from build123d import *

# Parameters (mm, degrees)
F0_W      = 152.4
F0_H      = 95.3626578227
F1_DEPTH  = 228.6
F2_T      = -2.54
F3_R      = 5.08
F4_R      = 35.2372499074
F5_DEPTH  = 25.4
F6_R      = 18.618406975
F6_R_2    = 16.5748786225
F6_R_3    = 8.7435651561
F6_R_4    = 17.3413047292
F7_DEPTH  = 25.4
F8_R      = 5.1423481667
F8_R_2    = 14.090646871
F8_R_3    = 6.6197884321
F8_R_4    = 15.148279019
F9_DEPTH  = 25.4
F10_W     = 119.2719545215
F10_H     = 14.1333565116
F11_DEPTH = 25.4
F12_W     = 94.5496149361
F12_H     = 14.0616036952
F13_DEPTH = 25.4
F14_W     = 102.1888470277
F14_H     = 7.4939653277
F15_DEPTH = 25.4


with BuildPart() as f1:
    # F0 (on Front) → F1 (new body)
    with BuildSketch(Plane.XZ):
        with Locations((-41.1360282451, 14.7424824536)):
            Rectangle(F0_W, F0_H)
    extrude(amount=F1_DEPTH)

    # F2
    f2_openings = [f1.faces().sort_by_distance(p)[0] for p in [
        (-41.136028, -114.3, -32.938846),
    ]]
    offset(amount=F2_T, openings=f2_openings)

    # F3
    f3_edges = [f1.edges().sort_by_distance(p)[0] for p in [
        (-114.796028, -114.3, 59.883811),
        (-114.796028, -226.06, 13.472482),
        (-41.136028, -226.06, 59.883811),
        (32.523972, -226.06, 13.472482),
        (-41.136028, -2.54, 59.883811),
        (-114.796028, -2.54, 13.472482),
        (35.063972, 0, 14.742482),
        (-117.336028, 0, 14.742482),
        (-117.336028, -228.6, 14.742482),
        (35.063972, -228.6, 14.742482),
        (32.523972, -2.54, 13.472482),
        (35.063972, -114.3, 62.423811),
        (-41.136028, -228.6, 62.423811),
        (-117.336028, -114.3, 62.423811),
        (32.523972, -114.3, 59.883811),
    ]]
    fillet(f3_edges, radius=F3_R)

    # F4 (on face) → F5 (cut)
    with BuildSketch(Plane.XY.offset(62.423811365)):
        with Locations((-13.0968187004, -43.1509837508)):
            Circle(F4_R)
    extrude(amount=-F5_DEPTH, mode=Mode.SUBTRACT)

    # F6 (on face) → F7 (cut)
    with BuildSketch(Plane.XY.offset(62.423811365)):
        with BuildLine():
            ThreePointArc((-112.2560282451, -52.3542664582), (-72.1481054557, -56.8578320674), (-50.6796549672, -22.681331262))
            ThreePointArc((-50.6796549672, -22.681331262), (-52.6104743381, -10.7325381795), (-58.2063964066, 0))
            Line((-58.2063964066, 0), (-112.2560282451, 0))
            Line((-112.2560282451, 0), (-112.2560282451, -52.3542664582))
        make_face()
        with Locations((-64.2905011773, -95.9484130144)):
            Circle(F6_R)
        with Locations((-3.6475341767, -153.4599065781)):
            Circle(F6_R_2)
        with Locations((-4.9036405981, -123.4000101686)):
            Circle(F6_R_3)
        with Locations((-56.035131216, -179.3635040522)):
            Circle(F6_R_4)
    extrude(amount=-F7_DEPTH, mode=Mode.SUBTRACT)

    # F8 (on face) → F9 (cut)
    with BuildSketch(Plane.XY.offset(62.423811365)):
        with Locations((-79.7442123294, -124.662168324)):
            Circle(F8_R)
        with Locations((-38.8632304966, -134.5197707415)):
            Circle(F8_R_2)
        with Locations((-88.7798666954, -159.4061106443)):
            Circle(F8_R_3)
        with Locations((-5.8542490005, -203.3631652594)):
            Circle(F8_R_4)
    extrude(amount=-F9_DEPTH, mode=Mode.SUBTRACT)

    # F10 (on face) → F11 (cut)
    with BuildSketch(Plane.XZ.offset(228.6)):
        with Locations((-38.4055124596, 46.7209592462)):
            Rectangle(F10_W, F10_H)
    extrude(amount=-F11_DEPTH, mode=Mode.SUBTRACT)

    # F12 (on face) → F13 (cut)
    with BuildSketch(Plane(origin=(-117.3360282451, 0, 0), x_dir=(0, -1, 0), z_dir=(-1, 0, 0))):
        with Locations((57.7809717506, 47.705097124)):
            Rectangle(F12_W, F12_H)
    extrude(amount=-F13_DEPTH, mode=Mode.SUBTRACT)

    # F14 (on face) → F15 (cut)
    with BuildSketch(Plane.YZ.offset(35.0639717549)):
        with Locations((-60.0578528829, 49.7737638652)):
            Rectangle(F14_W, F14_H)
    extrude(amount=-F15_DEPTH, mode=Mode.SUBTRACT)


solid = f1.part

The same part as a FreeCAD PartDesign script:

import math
import FreeCAD as App
import Part
import Sketcher

V = App.Vector
Q = App.Units.Quantity


def edges_at(feature, points):
    """Names of the edges that pass closest to the given points."""
    edges = feature.Shape.Edges
    near = lambda p: min(range(len(edges)), key=lambda i: edges[i].distToShape(Part.Vertex(*p))[0])
    return sorted({f"Edge{near(p) + 1}" for p in points})


def faces_at(feature, points):
    """Names of the faces that lie closest to the given points."""
    faces = feature.Shape.Faces
    near = lambda p: min(range(len(faces)), key=lambda i: faces[i].distToShape(Part.Vertex(*p))[0])
    return sorted({f"Face{near(p) + 1}" for p in points})


def add_polygon(sketch, points):
    """Adds a closed chain of lines whose ends are joined by coincident constraints."""
    first, n = sketch.GeometryCount, len(points)
    for a, b in zip(points, points[1:] + points[:1]):
        sketch.addGeometry(Part.LineSegment(App.Vector(*a, 0), App.Vector(*b, 0)), False)
    for i in range(n):
        sketch.addConstraint(Sketcher.Constraint("Coincident", first + i, 2, first + (i + 1) % n, 1))

doc = App.newDocument("Part")
body = doc.addObject("PartDesign::Body", "Body")

# Sketch on XZ plane
sketch1 = doc.addObject("Sketcher::SketchObject", "Sketch")
body.addObject(sketch1)
sketch1.AttachmentSupport = (doc.XZ_Plane, [""])
sketch1.MapMode = "FlatFace"
add_polygon(sketch1, [(-117, 62), (-117, -33), (35, -33), (35, 62)])  # lines 0-3
sketch1.addConstraint([
    Sketcher.Constraint("Vertical", 0),
    Sketcher.Constraint("Horizontal", 1),
    Sketcher.Constraint("Vertical", 2),
    Sketcher.Constraint("Horizontal", 3),
    Sketcher.Constraint("DistanceX", 1, 1, 1, 2, Q("6 in")),
    Sketcher.Constraint("DistanceY", 0, 2, 0, 1, Q("95.362658 mm")),
    Sketcher.Constraint("DistanceX", 0, 2, -1, 1, Q("117.336028 mm")),
    Sketcher.Constraint("DistanceY", -1, 1, 2, 2, Q("62.423811 mm")),
])
pad1 = doc.addObject("PartDesign::Pad", "Pad")
body.addObject(pad1)
pad1.Profile = sketch1
pad1.Length = Q("9 in")
doc.recompute()

thickness = doc.addObject("PartDesign::Thickness", "Thickness")
body.addObject(thickness)
thickness.Base = (pad1, faces_at(pad1, [(-41.136, -114.3, -32.939)]))
thickness.Value = Q("0.1 in")
thickness.Reversed = True
thickness.Join = "Arc"
doc.recompute()

fillet = doc.addObject("PartDesign::Fillet", "Fillet")
body.addObject(fillet)
fillet.Base = (thickness, edges_at(thickness, [
    (-114.796, -114.3, 59.884),
    (-114.796, -226.06, 13.472),
    (-41.136, -226.06, 59.884),
    (32.524, -226.06, 13.472),
    (-41.136, -2.54, 59.884),
    (-114.796, -2.54, 13.472),
    (35.064, 0, 14.742),
    (-117.336, 0, 14.742),
    (-117.336, -228.6, 14.742),
    (35.064, -228.6, 14.742),
    (32.524, -2.54, 13.472),
    (35.064, -114.3, 62.424),
    (-41.136, -228.6, 62.424),
    (-117.336, -114.3, 62.424),
    (32.524, -114.3, 59.884),
]))
fillet.Radius = Q("0.2 in")

# Sketch on XY plane
sketch2 = doc.addObject("Sketcher::SketchObject", "Sketch001")
body.addObject(sketch2)
sketch2.AttachmentSupport = (doc.XY_Plane, [""])
sketch2.MapMode = "FlatFace"
sketch2.AttachmentOffset = App.Placement(V(0, 0, 62.423811), App.Rotation())
sketch2.addGeometry(Part.Circle(V(-13, -43, 0), V(0, 0, 1), 35), False)
sketch2.addConstraint([
    Sketcher.Constraint("Diameter", 0, Q("70.4745 mm")),
    Sketcher.Constraint("DistanceX", 0, 3, -1, 1, Q("13.096819 mm")),
    Sketcher.Constraint("DistanceY", 0, 3, -1, 1, Q("43.150984 mm")),
])
pocket1 = doc.addObject("PartDesign::Pocket", "Pocket")
body.addObject(pocket1)
pocket1.Profile = sketch2
pocket1.Length = Q("1 in")

# Sketch on XY plane
sketch3 = doc.addObject("Sketcher::SketchObject", "Sketch002")
body.addObject(sketch3)
sketch3.AttachmentSupport = (doc.XY_Plane, [""])
sketch3.MapMode = "FlatFace"
sketch3.AttachmentOffset = App.Placement(V(0, 0, 62.423811), App.Rotation())
sketch3.addGeometry([
    Part.ArcOfCircle(Part.Circle(V(-89, -23, 0), V(0, 0, 1), 38), math.radians(-129), math.radians(0)),  # 0
    Part.ArcOfCircle(Part.Circle(V(-89, -23, 0), V(0, 0, 1), 38), math.radians(0), math.radians(37)),  # 1
    Part.LineSegment(V(-58, 0, 0), V(-112, 0, 0)),  # 2
    Part.LineSegment(V(-112, 0, 0), V(-112, -52, 0)),  # 3
    Part.Circle(V(-64, -96, 0), V(0, 0, 1), 19),  # 4
    Part.Circle(V(-4, -153, 0), V(0, 0, 1), 17),  # 5
    Part.Circle(V(-5, -123, 0), V(0, 0, 1), 9),  # 6
    Part.Circle(V(-56, -179, 0), V(0, 0, 1), 17),  # 7
], False)
sketch3.addConstraint([
    Sketcher.Constraint("Tangent", 0, 2, 1, 1),
    Sketcher.Constraint("Coincident", 1, 2, 2, 1),
    Sketcher.Constraint("Coincident", 2, 2, 3, 1),
    Sketcher.Constraint("Coincident", 3, 2, 0, 1),
    Sketcher.Constraint("Horizontal", 2),
    Sketcher.Constraint("Vertical", 3),
    Sketcher.Constraint("Equal", 0, 1),
    Sketcher.Constraint("PointOnObject", 1, 2, -1),
    Sketcher.Constraint("Horizontal", 1, 3, 0, 2),
    Sketcher.Constraint("Diameter", 6, Q("17.48713 mm")),
    Sketcher.Constraint("Diameter", 7, Q("34.682609 mm")),
    Sketcher.Constraint("Diameter", 4, Q("37.236814 mm")),
    Sketcher.Constraint("Diameter", 5, Q("33.149757 mm")),
    Sketcher.Constraint("Radius", 0, Q("37.937707 mm")),
    Sketcher.Constraint("DistanceX", 2, 2, 2, 1, Q("54.049632 mm")),
    Sketcher.Constraint("DistanceX", 4, 3, -1, 1, Q("64.290501 mm")),
    Sketcher.Constraint("DistanceY", 3, 2, 3, 1, Q("52.354266 mm")),
    Sketcher.Constraint("DistanceX", 6, 3, -1, 1, Q("4.903641 mm")),
    Sketcher.Constraint("DistanceY", 6, 3, -1, 1, Q("123.40001 mm")),
    Sketcher.Constraint("DistanceX", 7, 3, -1, 1, Q("56.035131 mm")),
    Sketcher.Constraint("DistanceX", 2, 2, -1, 1, Q("112.256028 mm")),
    Sketcher.Constraint("DistanceY", 4, 3, 1, 3, Q("73.267082 mm")),
    Sketcher.Constraint("DistanceY", 7, 3, 4, 3, Q("83.415091 mm")),
    Sketcher.Constraint("DistanceX", 0, 2, 5, 3, Q("47.032121 mm")),
    Sketcher.Constraint("DistanceY", 5, 3, -1, 1, Q("153.459907 mm")),
])
pocket2 = doc.addObject("PartDesign::Pocket", "Pocket001")
body.addObject(pocket2)
pocket2.Profile = sketch3
pocket2.Length = Q("1 in")

# Sketch on XY plane
sketch4 = doc.addObject("Sketcher::SketchObject", "Sketch003")
body.addObject(sketch4)
sketch4.AttachmentSupport = (doc.XY_Plane, [""])
sketch4.MapMode = "FlatFace"
sketch4.AttachmentOffset = App.Placement(V(0, 0, 62.423811), App.Rotation())
sketch4.addGeometry([
    Part.Circle(V(-80, -125, 0), V(0, 0, 1), 5),
    Part.Circle(V(-39, -135, 0), V(0, 0, 1), 14),
    Part.Circle(V(-89, -159, 0), V(0, 0, 1), 7),
    Part.Circle(V(-6, -203, 0), V(0, 0, 1), 15),
], False)
sketch4.addConstraint([
    Sketcher.Constraint("Diameter", 3, Q("30.296558 mm")),
    Sketcher.Constraint("Diameter", 0, Q("10.284696 mm")),
    Sketcher.Constraint("Diameter", 1, Q("28.181294 mm")),
    Sketcher.Constraint("Diameter", 2, Q("13.239577 mm")),
    Sketcher.Constraint("DistanceY", 0, 3, -1, 1, Q("124.662168 mm")),
    Sketcher.Constraint("DistanceX", 1, 3, -1, 1, Q("38.86323 mm")),
    Sketcher.Constraint("DistanceY", 1, 3, -1, 1, Q("134.519771 mm")),
    Sketcher.Constraint("DistanceY", 2, 3, -1, 1, Q("159.406111 mm")),
    Sketcher.Constraint("DistanceX", 3, 3, -1, 1, Q("5.854249 mm")),
    Sketcher.Constraint("DistanceX", 0, 3, 1, 3, Q("40.880982 mm")),
    Sketcher.Constraint("DistanceX", 2, 3, -1, 1, Q("88.779867 mm")),
    Sketcher.Constraint("DistanceY", 3, 3, -1, 1, Q("203.363165 mm")),
])
pocket3 = doc.addObject("PartDesign::Pocket", "Pocket002")
body.addObject(pocket3)
pocket3.Profile = sketch4
pocket3.Length = Q("1 in")

# Sketch on XZ plane
sketch5 = doc.addObject("Sketcher::SketchObject", "Sketch004")
body.addObject(sketch5)
sketch5.AttachmentSupport = (doc.XZ_Plane, [""])
sketch5.MapMode = "FlatFace"
sketch5.AttachmentOffset = App.Placement(V(0, 0, 9 * 25.4), App.Rotation())
add_polygon(sketch5, [(-98, 54), (-98, 40), (21, 40), (21, 54)])  # lines 0-3
sketch5.addConstraint([
    Sketcher.Constraint("Vertical", 0),
    Sketcher.Constraint("Horizontal", 1),
    Sketcher.Constraint("Vertical", 2),
    Sketcher.Constraint("Horizontal", 3),
    Sketcher.Constraint("DistanceX", 1, 1, 1, 2, Q("119.271955 mm")),
    Sketcher.Constraint("DistanceY", 0, 2, 0, 1, Q("14.133357 mm")),
    Sketcher.Constraint("DistanceX", 0, 2, -1, 1, Q("98.04149 mm")),
    Sketcher.Constraint("DistanceY", -1, 1, 0, 2, Q("39.654281 mm")),
])
pocket4 = doc.addObject("PartDesign::Pocket", "Pocket003")
body.addObject(pocket4)
pocket4.Profile = sketch5
pocket4.Length = Q("1 in")

# Sketch on YZ plane
sketch6 = doc.addObject("Sketcher::SketchObject", "Sketch005")
body.addObject(sketch6)
sketch6.AttachmentSupport = (doc.YZ_Plane, [""])
sketch6.MapMode = "FlatFace"
sketch6.AttachmentOffset = App.Placement(V(0, 0, -117.336028), App.Rotation())
add_polygon(sketch6, [(-11, 55), (-11, 41), (-105, 41), (-105, 55)])  # lines 0-3
sketch6.addConstraint([
    Sketcher.Constraint("Vertical", 0),
    Sketcher.Constraint("Horizontal", 1),
    Sketcher.Constraint("Vertical", 2),
    Sketcher.Constraint("Horizontal", 3),
    Sketcher.Constraint("DistanceY", -1, 1, 2, 2, Q("54.735899 mm")),
    Sketcher.Constraint("DistanceX", 1, 2, 1, 1, Q("94.549615 mm")),
    Sketcher.Constraint("DistanceY", 0, 2, 0, 1, Q("14.061604 mm")),
    Sketcher.Constraint("DistanceX", 1, 2, -1, 1, Q("105.055779 mm")),
])
pocket5 = doc.addObject("PartDesign::Pocket", "Pocket004")
body.addObject(pocket5)
pocket5.Profile = sketch6
pocket5.Length = Q("1 in")
pocket5.Reversed = True

# Sketch on YZ plane
sketch7 = doc.addObject("Sketcher::SketchObject", "Sketch006")
body.addObject(sketch7)
sketch7.AttachmentSupport = (doc.YZ_Plane, [""])
sketch7.MapMode = "FlatFace"
sketch7.AttachmentOffset = App.Placement(V(0, 0, 35.063972), App.Rotation())
add_polygon(sketch7, [(-111, 54), (-111, 46), (-9, 46), (-9, 54)])  # lines 0-3
sketch7.addConstraint([
    Sketcher.Constraint("Vertical", 0),
    Sketcher.Constraint("Horizontal", 1),
    Sketcher.Constraint("Vertical", 2),
    Sketcher.Constraint("Horizontal", 3),
    Sketcher.Constraint("DistanceX", 1, 1, 1, 2, Q("102.188847 mm")),
    Sketcher.Constraint("DistanceY", 0, 2, 0, 1, Q("7.493965 mm")),
    Sketcher.Constraint("DistanceY", -1, 1, 0, 2, Q("46.026781 mm")),
    Sketcher.Constraint("DistanceX", 1, 2, -1, 1, Q("8.963429 mm")),
])
pocket6 = doc.addObject("PartDesign::Pocket", "Pocket005")
body.addObject(pocket6)
pocket6.Profile = sketch7
pocket6.Length = Q("1 in")

doc.recompute()
